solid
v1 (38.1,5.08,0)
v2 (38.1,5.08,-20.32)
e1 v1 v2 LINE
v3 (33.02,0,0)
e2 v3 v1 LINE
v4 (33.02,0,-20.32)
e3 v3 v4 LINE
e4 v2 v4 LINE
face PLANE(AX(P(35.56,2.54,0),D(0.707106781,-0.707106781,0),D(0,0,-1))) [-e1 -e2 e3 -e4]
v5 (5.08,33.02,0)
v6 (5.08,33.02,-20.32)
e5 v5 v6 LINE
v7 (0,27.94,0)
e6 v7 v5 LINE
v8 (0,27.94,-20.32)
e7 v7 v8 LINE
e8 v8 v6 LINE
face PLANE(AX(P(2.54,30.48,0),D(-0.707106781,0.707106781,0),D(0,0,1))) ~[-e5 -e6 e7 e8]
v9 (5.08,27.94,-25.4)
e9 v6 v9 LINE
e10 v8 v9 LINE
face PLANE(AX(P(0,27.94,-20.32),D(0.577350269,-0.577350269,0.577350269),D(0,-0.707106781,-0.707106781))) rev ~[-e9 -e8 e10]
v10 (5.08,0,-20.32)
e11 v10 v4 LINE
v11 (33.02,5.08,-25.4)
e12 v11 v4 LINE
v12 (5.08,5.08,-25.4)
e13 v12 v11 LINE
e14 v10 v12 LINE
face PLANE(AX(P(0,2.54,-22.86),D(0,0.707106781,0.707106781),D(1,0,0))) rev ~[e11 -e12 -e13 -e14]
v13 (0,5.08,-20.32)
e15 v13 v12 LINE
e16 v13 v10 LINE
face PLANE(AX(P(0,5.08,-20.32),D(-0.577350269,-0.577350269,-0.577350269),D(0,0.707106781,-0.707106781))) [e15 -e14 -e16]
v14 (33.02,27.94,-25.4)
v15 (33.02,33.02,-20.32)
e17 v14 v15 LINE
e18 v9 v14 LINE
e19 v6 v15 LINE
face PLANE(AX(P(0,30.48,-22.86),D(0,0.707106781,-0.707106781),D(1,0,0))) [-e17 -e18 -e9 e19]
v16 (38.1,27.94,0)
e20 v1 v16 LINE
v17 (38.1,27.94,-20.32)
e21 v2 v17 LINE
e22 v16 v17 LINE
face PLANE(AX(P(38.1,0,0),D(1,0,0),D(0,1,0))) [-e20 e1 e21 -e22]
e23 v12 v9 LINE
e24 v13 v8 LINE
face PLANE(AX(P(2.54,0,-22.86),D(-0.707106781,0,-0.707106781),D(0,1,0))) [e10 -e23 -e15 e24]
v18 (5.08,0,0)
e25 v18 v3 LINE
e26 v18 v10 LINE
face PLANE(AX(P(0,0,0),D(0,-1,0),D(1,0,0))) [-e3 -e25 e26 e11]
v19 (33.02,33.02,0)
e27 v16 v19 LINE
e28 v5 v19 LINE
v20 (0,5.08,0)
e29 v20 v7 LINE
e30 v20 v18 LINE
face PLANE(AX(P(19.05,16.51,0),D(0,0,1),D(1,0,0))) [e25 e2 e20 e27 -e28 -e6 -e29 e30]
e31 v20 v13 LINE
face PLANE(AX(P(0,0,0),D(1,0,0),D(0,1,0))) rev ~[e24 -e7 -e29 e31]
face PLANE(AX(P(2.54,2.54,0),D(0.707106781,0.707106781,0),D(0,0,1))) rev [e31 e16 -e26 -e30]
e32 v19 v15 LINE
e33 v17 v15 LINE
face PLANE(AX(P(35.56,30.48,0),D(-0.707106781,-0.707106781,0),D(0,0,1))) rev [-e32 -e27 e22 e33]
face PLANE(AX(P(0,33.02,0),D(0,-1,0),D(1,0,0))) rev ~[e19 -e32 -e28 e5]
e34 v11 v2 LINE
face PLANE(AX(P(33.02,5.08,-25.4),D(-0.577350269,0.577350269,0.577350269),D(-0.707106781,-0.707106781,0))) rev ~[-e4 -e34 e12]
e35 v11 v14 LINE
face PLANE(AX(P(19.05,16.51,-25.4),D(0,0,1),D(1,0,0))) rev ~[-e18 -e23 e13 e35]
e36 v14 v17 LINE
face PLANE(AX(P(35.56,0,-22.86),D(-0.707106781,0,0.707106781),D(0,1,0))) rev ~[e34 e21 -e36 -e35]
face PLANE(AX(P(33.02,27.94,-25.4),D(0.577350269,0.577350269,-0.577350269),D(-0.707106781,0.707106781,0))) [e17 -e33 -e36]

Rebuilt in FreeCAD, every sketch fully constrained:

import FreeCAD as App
import Part
import Sketcher
from FreeCAD import Vector
Q = App.Units.Quantity


def edges_at(feature, points):
    """Names of the edges that pass closest to the given points."""
    edges = feature.Shape.Edges
    near = lambda p: min(range(len(edges)), key=lambda i: edges[i].distToShape(Part.Vertex(*p))[0])
    return sorted({f"Edge{near(p) + 1}" for p in points})


def add_polygon(sketch, points):
    """Adds a closed chain of lines whose ends are joined by coincident constraints."""
    first, n = sketch.GeometryCount, len(points)
    for a, b in zip(points, points[1:] + points[:1]):
        sketch.addGeometry(Part.LineSegment(App.Vector(*a, 0), App.Vector(*b, 0)), False)
    for i in range(n):
        sketch.addConstraint(Sketcher.Constraint("Coincident", first + i, 2, first + (i + 1) % n, 1))

doc = App.newDocument("Part")
params = doc.addObject("Spreadsheet::Sheet", "Params")
for row, (alias, value) in enumerate([
    ("sketch1_width", "1.5 in"),
    ("sketch1_height", "1.3 in"),
    ("pad1_length", "1 in"),
    ("chamfer_size", "0.2 in"),
], start=1):
    params.set(f"A{row}", alias)
    params.set(f"B{row}", "=" + value)
    params.setAlias(f"B{row}", alias)

body = doc.addObject("PartDesign::Body", "Body")

# Sketch on XY plane
sketch1 = doc.addObject("Sketcher::SketchObject", "Sketch")
body.addObject(sketch1)
sketch1.AttachmentSupport = (doc.XY_Plane, [""])
sketch1.MapMode = "FlatFace"
add_polygon(sketch1, [(0, 33.02), (0, 0), (38.1, 0), (38.1, 33.02)])  # lines 0-3
sketch1.addConstraint([
    Sketcher.Constraint("Vertical", 0),
    Sketcher.Constraint("Horizontal", 1),
    Sketcher.Constraint("Vertical", 2),
    Sketcher.Constraint("Horizontal", 3),
    Sketcher.Constraint("Coincident", 0, 2, -1, 1),
    Sketcher.Constraint("DistanceX", 1, 1, 1, 2, Q("1.5 in")),
    Sketcher.Constraint("DistanceY", 0, 2, 0, 1, Q("1.3 in")),
])
sketch1.setExpression("Constraints[9]", "Params.sketch1_width")
sketch1.setExpression("Constraints[10]", "Params.sketch1_height")
pad1 = doc.addObject("PartDesign::Pad", "Pad")
body.addObject(pad1)
pad1.Profile = sketch1
pad1.setExpression("Length", "Params.pad1_length")
pad1.Reversed = True
doc.recompute()

chamfer = doc.addObject("PartDesign::Chamfer", "Chamfer")
body.addObject(chamfer)
chamfer.Base = (pad1, edges_at(pad1, [
    (38.1, 0, -12.7),
    (38.1, 33.02, -12.7),
    (38.1, 16.51, -25.4),
    (19.05, 0, -25.4),
    (0, 0, -12.7),
    (19.05, 33.02, -25.4),
    (0, 33.02, -12.7),
    (0, 16.51, -25.4),
]))
chamfer.setExpression("Size", "Params.chamfer_size")

doc.recompute()
